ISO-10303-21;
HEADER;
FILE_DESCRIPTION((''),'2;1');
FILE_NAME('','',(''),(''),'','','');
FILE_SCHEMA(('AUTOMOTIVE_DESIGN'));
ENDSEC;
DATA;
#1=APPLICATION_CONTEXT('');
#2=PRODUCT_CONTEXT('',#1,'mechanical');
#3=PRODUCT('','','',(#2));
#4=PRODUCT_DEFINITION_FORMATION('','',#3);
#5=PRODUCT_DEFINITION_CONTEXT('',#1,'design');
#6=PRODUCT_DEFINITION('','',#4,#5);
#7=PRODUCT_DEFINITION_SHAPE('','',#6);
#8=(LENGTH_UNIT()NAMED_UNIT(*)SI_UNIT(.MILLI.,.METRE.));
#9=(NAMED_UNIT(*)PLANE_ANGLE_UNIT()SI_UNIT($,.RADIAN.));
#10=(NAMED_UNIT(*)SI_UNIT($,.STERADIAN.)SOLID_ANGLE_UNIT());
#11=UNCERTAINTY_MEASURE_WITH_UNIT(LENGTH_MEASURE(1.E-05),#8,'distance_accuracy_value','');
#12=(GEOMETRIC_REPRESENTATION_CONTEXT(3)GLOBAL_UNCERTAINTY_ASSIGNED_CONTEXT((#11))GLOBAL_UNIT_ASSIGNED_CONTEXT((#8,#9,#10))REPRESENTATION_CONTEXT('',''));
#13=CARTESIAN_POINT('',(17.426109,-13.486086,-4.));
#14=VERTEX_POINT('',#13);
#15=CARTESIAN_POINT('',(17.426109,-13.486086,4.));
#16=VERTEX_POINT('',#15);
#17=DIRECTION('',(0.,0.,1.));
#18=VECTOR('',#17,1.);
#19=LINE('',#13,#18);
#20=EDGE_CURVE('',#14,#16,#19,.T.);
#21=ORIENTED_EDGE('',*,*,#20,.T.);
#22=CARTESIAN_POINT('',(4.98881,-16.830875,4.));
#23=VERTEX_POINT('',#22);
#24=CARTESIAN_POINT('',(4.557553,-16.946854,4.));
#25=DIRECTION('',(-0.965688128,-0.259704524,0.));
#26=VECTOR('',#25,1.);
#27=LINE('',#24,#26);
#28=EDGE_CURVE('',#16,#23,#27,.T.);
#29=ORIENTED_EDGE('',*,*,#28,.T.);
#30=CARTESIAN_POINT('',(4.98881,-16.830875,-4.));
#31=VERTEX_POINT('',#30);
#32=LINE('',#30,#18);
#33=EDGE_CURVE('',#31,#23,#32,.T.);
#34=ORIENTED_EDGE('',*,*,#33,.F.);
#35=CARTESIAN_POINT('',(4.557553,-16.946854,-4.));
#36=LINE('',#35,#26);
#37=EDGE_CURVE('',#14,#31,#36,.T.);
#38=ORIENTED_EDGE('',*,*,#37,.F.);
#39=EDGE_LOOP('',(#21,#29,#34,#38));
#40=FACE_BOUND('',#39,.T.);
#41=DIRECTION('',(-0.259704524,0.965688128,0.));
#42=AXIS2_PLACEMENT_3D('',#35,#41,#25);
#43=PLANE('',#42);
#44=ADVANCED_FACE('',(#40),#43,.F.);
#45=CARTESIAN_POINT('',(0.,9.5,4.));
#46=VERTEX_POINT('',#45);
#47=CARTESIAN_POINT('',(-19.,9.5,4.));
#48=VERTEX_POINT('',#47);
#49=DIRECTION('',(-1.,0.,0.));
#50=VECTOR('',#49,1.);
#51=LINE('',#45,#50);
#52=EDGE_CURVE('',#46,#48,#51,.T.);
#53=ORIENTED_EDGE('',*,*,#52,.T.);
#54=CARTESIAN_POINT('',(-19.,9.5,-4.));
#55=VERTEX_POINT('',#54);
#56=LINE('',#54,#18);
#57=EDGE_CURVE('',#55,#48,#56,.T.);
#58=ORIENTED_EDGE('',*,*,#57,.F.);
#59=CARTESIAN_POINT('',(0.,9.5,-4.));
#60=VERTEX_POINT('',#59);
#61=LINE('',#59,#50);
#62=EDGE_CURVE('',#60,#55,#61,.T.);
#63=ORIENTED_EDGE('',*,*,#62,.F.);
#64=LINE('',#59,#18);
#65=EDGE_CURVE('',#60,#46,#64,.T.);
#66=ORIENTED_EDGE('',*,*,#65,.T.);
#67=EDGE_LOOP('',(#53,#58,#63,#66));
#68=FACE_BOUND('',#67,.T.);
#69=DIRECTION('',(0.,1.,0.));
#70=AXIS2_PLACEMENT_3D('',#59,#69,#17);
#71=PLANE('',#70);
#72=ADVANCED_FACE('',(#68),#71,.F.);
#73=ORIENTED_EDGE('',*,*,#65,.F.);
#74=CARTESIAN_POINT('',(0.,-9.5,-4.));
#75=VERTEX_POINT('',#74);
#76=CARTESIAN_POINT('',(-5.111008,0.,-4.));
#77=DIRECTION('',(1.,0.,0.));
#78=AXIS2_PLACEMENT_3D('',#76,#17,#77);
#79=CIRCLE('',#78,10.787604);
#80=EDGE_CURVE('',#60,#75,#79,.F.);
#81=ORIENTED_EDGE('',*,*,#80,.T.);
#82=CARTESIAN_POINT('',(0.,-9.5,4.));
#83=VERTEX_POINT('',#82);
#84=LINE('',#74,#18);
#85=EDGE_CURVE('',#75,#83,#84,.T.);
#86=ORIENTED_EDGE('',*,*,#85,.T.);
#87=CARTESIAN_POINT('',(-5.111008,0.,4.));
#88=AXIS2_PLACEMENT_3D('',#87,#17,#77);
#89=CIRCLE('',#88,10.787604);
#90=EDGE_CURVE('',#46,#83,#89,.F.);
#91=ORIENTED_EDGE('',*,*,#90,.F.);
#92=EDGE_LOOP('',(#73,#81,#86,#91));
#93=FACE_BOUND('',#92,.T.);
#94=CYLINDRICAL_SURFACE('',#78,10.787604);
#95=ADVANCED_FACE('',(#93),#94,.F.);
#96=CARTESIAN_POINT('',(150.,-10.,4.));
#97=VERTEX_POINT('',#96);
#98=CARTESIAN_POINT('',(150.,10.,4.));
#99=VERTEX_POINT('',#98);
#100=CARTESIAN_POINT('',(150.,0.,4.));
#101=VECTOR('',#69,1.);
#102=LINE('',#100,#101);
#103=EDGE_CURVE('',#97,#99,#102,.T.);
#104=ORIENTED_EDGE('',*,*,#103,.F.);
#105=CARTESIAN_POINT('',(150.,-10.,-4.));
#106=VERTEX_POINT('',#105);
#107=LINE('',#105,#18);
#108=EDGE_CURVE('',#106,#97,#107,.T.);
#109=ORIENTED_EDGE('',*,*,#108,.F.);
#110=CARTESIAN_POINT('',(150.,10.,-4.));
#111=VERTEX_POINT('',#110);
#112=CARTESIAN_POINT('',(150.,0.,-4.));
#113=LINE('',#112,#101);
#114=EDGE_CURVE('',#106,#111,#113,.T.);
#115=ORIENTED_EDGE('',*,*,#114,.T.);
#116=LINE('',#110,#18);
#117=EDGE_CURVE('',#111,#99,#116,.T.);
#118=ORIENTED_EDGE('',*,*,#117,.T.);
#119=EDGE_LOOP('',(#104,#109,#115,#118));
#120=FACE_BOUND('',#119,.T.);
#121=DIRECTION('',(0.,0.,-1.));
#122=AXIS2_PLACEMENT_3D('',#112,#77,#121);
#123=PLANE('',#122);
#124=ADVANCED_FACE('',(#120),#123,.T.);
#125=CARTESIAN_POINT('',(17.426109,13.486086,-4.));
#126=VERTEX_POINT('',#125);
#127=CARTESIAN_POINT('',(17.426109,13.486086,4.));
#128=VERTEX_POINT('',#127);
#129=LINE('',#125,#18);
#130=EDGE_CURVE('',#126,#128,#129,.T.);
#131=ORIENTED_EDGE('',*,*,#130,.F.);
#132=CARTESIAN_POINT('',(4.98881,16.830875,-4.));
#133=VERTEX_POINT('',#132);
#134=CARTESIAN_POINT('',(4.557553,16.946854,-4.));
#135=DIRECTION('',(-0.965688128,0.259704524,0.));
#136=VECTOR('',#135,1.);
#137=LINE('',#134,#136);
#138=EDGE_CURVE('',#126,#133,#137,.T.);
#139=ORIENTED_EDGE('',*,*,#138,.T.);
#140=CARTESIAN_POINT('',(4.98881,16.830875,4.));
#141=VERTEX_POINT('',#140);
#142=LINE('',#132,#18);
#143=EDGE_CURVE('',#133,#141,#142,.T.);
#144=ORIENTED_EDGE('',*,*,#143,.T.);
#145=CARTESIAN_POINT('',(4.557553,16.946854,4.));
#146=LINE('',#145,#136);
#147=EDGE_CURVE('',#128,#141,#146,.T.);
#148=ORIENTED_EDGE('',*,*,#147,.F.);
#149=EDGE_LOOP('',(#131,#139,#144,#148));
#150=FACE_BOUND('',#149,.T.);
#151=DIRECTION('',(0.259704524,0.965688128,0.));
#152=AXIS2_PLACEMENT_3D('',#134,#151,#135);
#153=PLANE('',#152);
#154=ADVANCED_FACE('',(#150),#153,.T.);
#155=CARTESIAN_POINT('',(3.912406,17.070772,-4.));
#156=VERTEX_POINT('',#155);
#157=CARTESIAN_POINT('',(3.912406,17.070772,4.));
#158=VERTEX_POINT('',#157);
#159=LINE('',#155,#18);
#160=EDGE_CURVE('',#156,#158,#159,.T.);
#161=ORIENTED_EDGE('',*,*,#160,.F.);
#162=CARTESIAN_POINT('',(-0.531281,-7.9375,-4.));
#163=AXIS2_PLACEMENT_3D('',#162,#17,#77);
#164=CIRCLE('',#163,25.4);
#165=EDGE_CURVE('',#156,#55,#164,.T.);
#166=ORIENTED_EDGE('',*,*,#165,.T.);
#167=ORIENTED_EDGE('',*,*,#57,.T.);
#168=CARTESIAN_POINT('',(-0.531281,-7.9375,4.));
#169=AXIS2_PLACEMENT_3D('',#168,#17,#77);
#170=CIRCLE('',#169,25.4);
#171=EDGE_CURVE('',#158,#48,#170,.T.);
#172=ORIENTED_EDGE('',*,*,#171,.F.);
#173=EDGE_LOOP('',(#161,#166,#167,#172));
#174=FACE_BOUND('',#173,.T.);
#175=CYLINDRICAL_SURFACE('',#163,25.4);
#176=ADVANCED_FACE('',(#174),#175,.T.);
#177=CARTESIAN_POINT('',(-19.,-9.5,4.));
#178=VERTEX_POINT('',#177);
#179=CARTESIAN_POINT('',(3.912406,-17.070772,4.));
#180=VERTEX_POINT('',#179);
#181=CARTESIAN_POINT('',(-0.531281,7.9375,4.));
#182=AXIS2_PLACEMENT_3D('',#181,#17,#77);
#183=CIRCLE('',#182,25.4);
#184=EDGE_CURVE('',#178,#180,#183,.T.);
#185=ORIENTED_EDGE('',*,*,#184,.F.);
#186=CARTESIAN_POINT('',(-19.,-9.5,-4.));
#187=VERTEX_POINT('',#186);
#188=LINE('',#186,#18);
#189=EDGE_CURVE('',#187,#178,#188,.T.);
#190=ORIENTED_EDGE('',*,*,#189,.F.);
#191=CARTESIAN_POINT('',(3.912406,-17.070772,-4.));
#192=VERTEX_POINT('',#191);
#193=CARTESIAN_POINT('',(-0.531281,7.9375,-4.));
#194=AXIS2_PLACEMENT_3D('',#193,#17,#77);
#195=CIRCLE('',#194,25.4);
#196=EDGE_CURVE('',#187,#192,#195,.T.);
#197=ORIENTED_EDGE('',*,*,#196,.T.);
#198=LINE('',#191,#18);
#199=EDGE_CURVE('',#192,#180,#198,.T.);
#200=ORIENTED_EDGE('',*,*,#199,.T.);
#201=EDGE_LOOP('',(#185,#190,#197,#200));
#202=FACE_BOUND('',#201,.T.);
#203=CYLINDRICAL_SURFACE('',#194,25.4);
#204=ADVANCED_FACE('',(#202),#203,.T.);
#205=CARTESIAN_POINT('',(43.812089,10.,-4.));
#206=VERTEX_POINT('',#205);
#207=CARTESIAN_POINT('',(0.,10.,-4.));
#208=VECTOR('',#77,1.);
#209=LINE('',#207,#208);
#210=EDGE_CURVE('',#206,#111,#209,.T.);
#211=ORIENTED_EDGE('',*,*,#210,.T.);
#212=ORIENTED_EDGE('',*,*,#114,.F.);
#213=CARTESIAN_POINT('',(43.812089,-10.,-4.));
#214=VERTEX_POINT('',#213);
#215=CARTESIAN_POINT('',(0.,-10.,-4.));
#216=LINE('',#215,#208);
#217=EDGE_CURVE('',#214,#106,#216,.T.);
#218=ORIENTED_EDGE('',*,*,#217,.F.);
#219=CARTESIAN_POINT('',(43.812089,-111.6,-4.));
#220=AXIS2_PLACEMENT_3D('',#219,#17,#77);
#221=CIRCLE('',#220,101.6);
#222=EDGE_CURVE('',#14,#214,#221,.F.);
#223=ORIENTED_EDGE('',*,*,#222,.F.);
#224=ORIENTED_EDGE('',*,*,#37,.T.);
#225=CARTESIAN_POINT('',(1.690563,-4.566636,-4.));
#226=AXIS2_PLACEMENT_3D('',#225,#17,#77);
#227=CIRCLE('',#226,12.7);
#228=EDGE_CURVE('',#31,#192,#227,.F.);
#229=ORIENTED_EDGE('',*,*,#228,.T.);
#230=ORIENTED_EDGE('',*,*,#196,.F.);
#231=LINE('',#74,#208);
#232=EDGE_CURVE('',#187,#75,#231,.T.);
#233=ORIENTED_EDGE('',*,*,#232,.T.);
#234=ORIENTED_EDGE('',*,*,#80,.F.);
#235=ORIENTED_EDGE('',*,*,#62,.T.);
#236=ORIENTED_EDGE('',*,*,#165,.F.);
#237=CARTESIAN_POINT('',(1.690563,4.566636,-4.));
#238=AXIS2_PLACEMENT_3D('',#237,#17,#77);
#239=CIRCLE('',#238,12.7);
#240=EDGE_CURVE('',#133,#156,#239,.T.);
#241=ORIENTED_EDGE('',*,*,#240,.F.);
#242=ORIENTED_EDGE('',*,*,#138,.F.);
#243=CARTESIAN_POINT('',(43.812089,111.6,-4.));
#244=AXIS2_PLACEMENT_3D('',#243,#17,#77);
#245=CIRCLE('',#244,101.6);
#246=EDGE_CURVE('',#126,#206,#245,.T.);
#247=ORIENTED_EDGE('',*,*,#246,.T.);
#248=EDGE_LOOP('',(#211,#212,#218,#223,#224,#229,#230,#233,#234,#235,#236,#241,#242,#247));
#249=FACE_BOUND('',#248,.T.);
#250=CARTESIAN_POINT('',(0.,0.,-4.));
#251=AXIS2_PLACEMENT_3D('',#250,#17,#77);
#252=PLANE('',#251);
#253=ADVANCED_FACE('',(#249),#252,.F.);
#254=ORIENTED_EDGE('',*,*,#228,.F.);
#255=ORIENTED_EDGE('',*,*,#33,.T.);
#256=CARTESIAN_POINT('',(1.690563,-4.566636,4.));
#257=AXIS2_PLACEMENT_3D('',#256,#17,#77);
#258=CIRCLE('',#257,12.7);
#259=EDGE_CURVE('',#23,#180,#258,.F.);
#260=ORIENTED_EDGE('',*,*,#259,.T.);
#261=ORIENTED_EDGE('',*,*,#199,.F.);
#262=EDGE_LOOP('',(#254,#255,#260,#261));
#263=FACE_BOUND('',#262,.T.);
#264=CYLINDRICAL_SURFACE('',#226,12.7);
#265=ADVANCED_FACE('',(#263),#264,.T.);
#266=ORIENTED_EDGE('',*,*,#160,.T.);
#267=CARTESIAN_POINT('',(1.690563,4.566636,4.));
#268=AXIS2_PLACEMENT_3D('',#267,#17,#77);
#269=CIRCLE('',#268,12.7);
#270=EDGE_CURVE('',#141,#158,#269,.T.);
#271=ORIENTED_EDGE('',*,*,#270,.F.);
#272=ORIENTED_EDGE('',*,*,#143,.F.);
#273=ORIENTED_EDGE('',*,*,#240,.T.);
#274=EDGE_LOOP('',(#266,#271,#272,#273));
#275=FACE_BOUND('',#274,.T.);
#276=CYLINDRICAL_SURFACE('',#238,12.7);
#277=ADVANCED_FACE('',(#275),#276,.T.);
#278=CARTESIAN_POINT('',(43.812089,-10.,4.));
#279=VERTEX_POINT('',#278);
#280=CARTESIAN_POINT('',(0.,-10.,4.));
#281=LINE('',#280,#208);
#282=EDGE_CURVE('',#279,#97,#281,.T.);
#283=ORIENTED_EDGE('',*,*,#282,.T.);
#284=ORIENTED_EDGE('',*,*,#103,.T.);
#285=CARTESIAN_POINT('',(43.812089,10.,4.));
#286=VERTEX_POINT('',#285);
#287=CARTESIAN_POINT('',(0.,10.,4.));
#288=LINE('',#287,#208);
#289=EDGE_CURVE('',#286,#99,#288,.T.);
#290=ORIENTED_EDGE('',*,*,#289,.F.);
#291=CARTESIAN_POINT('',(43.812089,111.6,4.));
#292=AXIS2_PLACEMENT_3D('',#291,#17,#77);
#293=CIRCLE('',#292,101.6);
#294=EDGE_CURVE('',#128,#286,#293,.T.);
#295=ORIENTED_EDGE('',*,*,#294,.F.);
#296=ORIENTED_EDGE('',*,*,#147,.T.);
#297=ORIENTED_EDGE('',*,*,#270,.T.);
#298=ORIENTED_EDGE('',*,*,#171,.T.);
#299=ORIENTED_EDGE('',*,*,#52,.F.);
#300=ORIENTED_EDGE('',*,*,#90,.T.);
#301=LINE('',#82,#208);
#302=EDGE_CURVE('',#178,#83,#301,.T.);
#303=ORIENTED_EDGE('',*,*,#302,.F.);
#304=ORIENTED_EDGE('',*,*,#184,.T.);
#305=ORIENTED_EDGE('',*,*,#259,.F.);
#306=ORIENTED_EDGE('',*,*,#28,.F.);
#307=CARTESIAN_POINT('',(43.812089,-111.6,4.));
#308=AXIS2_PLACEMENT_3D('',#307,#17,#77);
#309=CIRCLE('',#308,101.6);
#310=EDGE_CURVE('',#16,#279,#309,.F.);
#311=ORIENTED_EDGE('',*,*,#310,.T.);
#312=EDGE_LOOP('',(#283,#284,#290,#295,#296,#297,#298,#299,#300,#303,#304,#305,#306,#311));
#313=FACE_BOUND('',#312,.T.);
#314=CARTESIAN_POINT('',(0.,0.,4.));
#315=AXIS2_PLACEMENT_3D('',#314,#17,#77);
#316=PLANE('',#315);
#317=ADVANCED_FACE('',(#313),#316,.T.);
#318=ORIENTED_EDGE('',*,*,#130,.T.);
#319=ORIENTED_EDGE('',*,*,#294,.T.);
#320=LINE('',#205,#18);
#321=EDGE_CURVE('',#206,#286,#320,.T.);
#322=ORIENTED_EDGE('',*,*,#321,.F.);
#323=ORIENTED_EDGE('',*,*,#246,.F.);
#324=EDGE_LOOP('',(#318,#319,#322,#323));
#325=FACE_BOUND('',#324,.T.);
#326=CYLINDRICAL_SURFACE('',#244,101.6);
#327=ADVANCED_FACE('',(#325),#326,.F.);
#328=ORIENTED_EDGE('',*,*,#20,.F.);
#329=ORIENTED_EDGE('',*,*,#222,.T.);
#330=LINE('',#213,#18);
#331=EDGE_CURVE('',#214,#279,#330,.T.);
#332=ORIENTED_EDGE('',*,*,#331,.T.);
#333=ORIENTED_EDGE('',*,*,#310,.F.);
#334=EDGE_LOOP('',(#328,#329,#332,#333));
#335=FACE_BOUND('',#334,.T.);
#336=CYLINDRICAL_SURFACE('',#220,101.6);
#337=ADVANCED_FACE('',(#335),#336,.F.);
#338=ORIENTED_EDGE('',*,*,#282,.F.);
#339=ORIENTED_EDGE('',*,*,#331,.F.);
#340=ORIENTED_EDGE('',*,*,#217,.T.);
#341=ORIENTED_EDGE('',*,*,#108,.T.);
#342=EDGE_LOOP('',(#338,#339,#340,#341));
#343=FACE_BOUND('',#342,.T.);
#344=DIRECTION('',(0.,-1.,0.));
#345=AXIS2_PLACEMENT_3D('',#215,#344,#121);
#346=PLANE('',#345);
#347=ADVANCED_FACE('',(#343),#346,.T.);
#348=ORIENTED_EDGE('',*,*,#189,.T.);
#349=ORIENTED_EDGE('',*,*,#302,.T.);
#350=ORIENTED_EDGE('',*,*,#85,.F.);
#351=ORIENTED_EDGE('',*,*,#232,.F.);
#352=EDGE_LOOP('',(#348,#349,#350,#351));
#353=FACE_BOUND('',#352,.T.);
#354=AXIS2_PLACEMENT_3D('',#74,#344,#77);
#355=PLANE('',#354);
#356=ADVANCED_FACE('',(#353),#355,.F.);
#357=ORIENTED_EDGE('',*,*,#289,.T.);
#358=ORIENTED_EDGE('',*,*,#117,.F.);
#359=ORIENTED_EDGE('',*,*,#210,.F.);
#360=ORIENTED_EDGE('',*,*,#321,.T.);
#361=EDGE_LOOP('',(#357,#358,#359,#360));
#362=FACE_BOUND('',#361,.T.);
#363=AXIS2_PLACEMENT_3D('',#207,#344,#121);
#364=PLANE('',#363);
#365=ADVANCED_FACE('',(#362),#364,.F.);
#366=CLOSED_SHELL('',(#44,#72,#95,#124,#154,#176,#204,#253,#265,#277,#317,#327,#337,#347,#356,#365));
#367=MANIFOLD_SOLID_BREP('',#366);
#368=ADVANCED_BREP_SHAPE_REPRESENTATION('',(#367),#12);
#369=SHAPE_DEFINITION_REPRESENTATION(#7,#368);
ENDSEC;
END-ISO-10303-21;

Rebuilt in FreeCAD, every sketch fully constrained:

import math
import FreeCAD as App
import Part
import Sketcher
Q = App.Units.Quantity

doc = App.newDocument("Part")
body = doc.addObject("PartDesign::Body", "Body")

sketch1 = body.newObject("Sketcher::SketchObject", "Sketch")
sketch1.AttachmentSupport = (doc.getObject("XY_Plane"), [""])
sketch1.MapMode = "FlatFace"
sketch1.addGeometry([
    Part.LineSegment(App.Vector(-19, -10, 0), App.Vector(0, -10, 0)),
    Part.ArcOfCircle(Part.Circle(App.Vector(-5, 0, 0), App.Vector(0, 0, 1), 11), math.radians(-62), math.radians(62)),
    Part.LineSegment(App.Vector(0, 10, 0), App.Vector(-19, 10, 0)),
    Part.ArcOfCircle(Part.Circle(App.Vector(-1, -8, 0), App.Vector(0, 0, 1), 25), math.radians(80), math.radians(137)),
    Part.ArcOfCircle(Part.Circle(App.Vector(2, 5, 0), App.Vector(0, 0, 1), 13), math.radians(21), math.radians(80)),
    Part.ArcOfCircle(Part.Circle(App.Vector(-10, 0, 0), App.Vector(0, 0, 1), 25), math.radians(-21), math.radians(21)),
    Part.ArcOfCircle(Part.Circle(App.Vector(2, -5, 0), App.Vector(0, 0, 1), 13), math.radians(-80), math.radians(-21)),
    Part.ArcOfCircle(Part.Circle(App.Vector(-1, 8, 0), App.Vector(0, 0, 1), 25), math.radians(-137), math.radians(-80)),
], False)
sketch1.addConstraint([
    Sketcher.Constraint("Coincident", 0, 2, 1, 1),
    Sketcher.Constraint("Coincident", 1, 2, 2, 1),
    Sketcher.Constraint("Coincident", 2, 2, 3, 2),
    Sketcher.Constraint("Tangent", 3, 1, 4, 2),
    Sketcher.Constraint("Tangent", 4, 1, 5, 2),
    Sketcher.Constraint("Tangent", 5, 1, 6, 2),
    Sketcher.Constraint("Tangent", 6, 1, 7, 2),
    Sketcher.Constraint("Coincident", 7, 1, 0, 1),
    Sketcher.Constraint("Horizontal", 0),
    Sketcher.Constraint("Horizontal", 2),
    Sketcher.Constraint("Equal", 3, 5),
    Sketcher.Constraint("Equal", 4, 6),
    Sketcher.Constraint("Equal", 5, 7),
    Sketcher.Constraint("Symmetric", 0, 2, 1, 2, -1, 1),
    Sketcher.Constraint("Symmetric", 4, 3, 6, 3, -1),
    Sketcher.Constraint("PointOnObject", 1, 3, -1),
    Sketcher.Constraint("Vertical", 3, 3, 7, 3),
    Sketcher.Constraint("Radius", 3, Q("25.4 mm")),
    Sketcher.Constraint("Radius", 4, Q("12.7 mm")),
    Sketcher.Constraint("DistanceX", 0, 1, 0, 2, Q("19 mm")),
    Sketcher.Constraint("DistanceY", 7, 1, 2, 2, Q("19 mm")),
    Sketcher.Constraint("DistanceX", 5, 3, -1, 1, Q("10.16 mm")),
    Sketcher.Constraint("Radius", 1, Q("10.787604 mm")),
    Sketcher.Constraint("DistanceY", 3, 3, 7, 3, Q("15.875 mm")),
])
pad1 = body.newObject("PartDesign::Pad", "Pad")
pad1.Profile = sketch1
pad1.Length = 8
pad1.Midplane = True

sketch2 = body.newObject("Sketcher::SketchObject", "Sketch001")
sketch2.AttachmentSupport = (doc.getObject("XY_Plane"), [""])
sketch2.MapMode = "FlatFace"
sketch2.addGeometry([
    Part.ArcOfCircle(Part.Circle(App.Vector(44, -112, 0), App.Vector(0, 0, 1), 102), math.radians(90), math.radians(105.05)),
    Part.LineSegment(App.Vector(17, -13, 0), App.Vector(5, -17, 0)),
    Part.ArcOfCircle(Part.Circle(App.Vector(2, -5, 0), App.Vector(0, 0, 1), 13), math.radians(-75), math.radians(-21)),
    Part.ArcOfCircle(Part.Circle(App.Vector(-10, 0, 0), App.Vector(0, 0, 1), 25), math.radians(-21), math.radians(21)),
    Part.ArcOfCircle(Part.Circle(App.Vector(2, 5, 0), App.Vector(0, 0, 1), 13), math.radians(21), math.radians(75)),
    Part.LineSegment(App.Vector(5, 17, 0), App.Vector(17, 13, 0)),
    Part.ArcOfCircle(Part.Circle(App.Vector(44, 112, 0), App.Vector(0, 0, 1), 102), math.radians(-105.05), math.radians(-90)),
    Part.LineSegment(App.Vector(44, 10, 0), App.Vector(150, 10, 0)),
    Part.LineSegment(App.Vector(150, 10, 0), App.Vector(150, -10, 0)),
    Part.LineSegment(App.Vector(150, -10, 0), App.Vector(44, -10, 0)),
], False)
sketch2.addConstraint([
    Sketcher.Constraint("Tangent", 0, 2, 1, 1),
    Sketcher.Constraint("Tangent", 1, 2, 2, 1),
    Sketcher.Constraint("Tangent", 2, 2, 3, 1),
    Sketcher.Constraint("Tangent", 3, 2, 4, 1),
    Sketcher.Constraint("Tangent", 4, 2, 5, 1),
    Sketcher.Constraint("Tangent", 5, 2, 6, 1),
    Sketcher.Constraint("Tangent", 6, 2, 7, 1),
    Sketcher.Constraint("Coincident", 7, 2, 8, 1),
    Sketcher.Constraint("Coincident", 8, 2, 9, 1),
    Sketcher.Constraint("Tangent", 9, 2, 0, 1),
    Sketcher.Constraint("Horizontal", 7),
    Sketcher.Constraint("Vertical", 8),
    Sketcher.Constraint("Horizontal", 9),
    Sketcher.Constraint("Equal", 2, 4),
    Sketcher.Constraint("Equal", 0, 6),
    Sketcher.Constraint("Symmetric", 2, 3, 4, 3, -1),
    Sketcher.Constraint("Symmetric", 0, 3, 6, 3, -1),
    Sketcher.Constraint("Radius", 0, Q("101.6 mm")),
    Sketcher.Constraint("Radius", 2, Q("12.7 mm")),
    Sketcher.Constraint("Radius", 3, Q("25.4 mm")),
    Sketcher.Constraint("DistanceY", 8, 2, 8, 1, Q("20 mm")),
    Sketcher.Constraint("DistanceX", -1, 1, 7, 2, Q("150 mm")),
    Sketcher.Constraint("DistanceX", 3, 3, -1, 1, Q("10.16 mm")),
    Sketcher.Constraint("DistanceX", 7, 1, 7, 2, Q("106.187911 mm")),
    Sketcher.Constraint("DistanceX", 1, 2, 0, 2, Q("12.437299 mm")),
])
pad2 = body.newObject("PartDesign::Pad", "Pad001")
pad2.Profile = sketch2
pad2.Length = 8
pad2.Midplane = True

doc.recompute()
